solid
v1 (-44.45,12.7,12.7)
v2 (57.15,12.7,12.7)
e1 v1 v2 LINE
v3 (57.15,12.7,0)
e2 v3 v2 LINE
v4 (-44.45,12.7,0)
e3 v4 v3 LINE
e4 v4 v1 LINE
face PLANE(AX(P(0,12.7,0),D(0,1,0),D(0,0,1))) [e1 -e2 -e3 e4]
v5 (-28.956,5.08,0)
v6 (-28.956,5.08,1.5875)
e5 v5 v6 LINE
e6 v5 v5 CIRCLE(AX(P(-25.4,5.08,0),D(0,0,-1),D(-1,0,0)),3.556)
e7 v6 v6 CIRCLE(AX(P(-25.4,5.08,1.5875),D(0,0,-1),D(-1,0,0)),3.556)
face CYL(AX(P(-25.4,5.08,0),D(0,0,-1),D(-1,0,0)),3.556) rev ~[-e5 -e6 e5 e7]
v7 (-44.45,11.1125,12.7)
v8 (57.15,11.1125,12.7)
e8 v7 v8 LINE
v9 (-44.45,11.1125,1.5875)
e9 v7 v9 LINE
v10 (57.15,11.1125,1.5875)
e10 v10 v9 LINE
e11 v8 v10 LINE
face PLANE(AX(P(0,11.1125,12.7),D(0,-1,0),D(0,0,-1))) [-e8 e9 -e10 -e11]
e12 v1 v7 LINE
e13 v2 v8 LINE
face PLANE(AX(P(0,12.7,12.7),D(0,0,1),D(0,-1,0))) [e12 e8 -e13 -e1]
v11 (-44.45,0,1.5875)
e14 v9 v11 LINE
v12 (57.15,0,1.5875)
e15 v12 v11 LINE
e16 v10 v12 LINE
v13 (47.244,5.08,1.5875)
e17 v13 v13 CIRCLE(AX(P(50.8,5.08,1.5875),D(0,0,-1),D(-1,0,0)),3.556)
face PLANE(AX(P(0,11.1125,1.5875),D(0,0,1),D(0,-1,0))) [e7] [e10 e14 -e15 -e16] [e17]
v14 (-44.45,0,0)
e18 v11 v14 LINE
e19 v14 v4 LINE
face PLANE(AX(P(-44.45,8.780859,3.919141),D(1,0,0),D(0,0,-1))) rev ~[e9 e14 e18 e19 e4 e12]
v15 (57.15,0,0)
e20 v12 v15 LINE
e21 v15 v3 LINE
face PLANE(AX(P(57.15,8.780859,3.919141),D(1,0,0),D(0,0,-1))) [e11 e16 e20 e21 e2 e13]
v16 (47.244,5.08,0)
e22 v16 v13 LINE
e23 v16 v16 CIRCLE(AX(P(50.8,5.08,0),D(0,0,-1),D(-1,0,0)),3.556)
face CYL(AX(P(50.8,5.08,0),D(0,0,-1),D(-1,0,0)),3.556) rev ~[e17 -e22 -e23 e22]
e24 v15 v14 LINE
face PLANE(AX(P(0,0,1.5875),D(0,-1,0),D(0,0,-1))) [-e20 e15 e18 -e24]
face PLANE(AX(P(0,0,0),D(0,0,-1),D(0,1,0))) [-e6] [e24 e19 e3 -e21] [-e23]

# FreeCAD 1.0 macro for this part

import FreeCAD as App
import Part
import Sketcher
Q = App.Units.Quantity

doc = App.newDocument("Part")
body = doc.addObject("PartDesign::Body", "Body")

sketch1 = body.newObject("Sketcher::SketchObject", "Sketch")
sketch1.AttachmentSupport = (doc.getObject("YZ_Plane"), [""])
sketch1.MapMode = "FlatFace"
sketch1.addGeometry([
    Part.LineSegment(App.Vector(0, 0, 0), App.Vector(12.7, 0, 0)),
    Part.LineSegment(App.Vector(12.7, 0, 0), App.Vector(12.7, 12.7, 0)),
    Part.LineSegment(App.Vector(12.7, 12.7, 0), App.Vector(11.1, 12.7, 0)),
    Part.LineSegment(App.Vector(11.1, 12.7, 0), App.Vector(11.1, 1.6, 0)),
    Part.LineSegment(App.Vector(11.1, 1.6, 0), App.Vector(0, 1.6, 0)),
    Part.LineSegment(App.Vector(0, 1.6, 0), App.Vector(0, 0, 0)),
], False)
sketch1.addConstraint([
    Sketcher.Constraint("Coincident", 0, 2, 1, 1),
    Sketcher.Constraint("Coincident", 1, 2, 2, 1),
    Sketcher.Constraint("Coincident", 2, 2, 3, 1),
    Sketcher.Constraint("Coincident", 3, 2, 4, 1),
    Sketcher.Constraint("Coincident", 4, 2, 5, 1),
    Sketcher.Constraint("Coincident", 5, 2, 0, 1),
    Sketcher.Constraint("Horizontal", 0),
    Sketcher.Constraint("Vertical", 1),
    Sketcher.Constraint("Horizontal", 2),
    Sketcher.Constraint("Vertical", 3),
    Sketcher.Constraint("Horizontal", 4),
    Sketcher.Constraint("Vertical", 5),
    Sketcher.Constraint("Coincident", 5, 2, -1, 1),
    Sketcher.Constraint("Equal", 0, 1),
    Sketcher.Constraint("Equal", 4, 3),
    Sketcher.Constraint("DistanceX", 0, 1, 0, 2, Q("0.5 in")),
    Sketcher.Constraint("DistanceX", 2, 2, 2, 1, Q("0.0625 in")),
])
pad1 = body.newObject("PartDesign::Pad", "Pad")
pad1.Profile = sketch1
pad1.Type = "TwoLengths"
pad1.Length = Q("2.25 in")
pad1.Length2 = Q("1.75 in")

sketch2 = body.newObject("Sketcher::SketchObject", "Sketch001")
sketch2.AttachmentSupport = (doc.getObject("XY_Plane"), [""])
sketch2.MapMode = "FlatFace"
sketch2.addGeometry([
    Part.Circle(App.Vector(-25.4, 5.1, 0), App.Vector(0, 0, 1), 3.6),
    Part.Circle(App.Vector(50.8, 5.1, 0), App.Vector(0, 0, 1), 3.6),
], False)
sketch2.addConstraint([
    Sketcher.Constraint("Equal", 0, 1),
    Sketcher.Constraint("Horizontal", 0, 3, 1, 3),
    Sketcher.Constraint("Diameter", 0, Q("0.28 in")),
    Sketcher.Constraint("DistanceX", 0, 3, -1, 1, Q("1 in")),
    Sketcher.Constraint("DistanceX", -1, 1, 1, 3, Q("2 in")),
    Sketcher.Constraint("DistanceY", -1, 1, 0, 3, Q("0.2 in")),
])
pocket1 = body.newObject("PartDesign::Pocket", "Pocket")
pocket1.Profile = sketch2
pocket1.Type = "ThroughAll"
pocket1.Reversed = True

doc.recompute()
